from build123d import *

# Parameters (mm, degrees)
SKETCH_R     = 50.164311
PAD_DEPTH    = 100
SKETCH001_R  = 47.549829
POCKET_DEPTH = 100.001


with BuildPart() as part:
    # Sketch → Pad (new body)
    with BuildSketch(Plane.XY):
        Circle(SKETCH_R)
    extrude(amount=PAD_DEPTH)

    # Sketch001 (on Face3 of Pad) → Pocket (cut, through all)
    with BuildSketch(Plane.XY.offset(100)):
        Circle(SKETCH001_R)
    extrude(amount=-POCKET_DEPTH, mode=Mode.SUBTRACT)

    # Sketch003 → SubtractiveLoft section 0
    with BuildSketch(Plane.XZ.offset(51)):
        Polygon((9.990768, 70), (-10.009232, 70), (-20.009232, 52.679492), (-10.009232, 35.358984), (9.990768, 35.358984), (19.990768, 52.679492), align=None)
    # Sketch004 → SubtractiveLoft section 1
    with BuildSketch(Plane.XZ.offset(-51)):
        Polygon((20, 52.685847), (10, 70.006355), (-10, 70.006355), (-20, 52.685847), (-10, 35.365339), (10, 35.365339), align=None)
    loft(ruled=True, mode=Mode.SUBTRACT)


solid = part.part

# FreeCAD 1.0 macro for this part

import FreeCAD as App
import Part
import Sketcher

V = App.Vector
Q = App.Units.Quantity

doc = App.newDocument("Part")
params = doc.addObject("Spreadsheet::Sheet", "Params")
for row, (alias, value) in enumerate([
    ("pad1_length", "100 mm"),
    ("sketch3_width", "20 mm"),
    ("sketch3_length", "20 mm"),
    ("sketch4_width", "20 mm"),
    ("sketch4_length", "20 mm"),
], start=1):
    params.set(f"A{row}", alias)
    params.set(f"B{row}", "=" + value)
    params.setAlias(f"B{row}", alias)

body = doc.addObject("PartDesign::Body", "Body")

sketch1 = body.newObject("Sketcher::SketchObject", "Sketch")
sketch1.AttachmentSupport = (doc.getObject("XY_Plane"), [""])
sketch1.MapMode = "FlatFace"
sketch1.addGeometry(Part.Circle(V(0, 0, 0), V(0, 0, 1), 50), False)
sketch1.addConstraint([
    Sketcher.Constraint("Coincident", 0, 3, -1, 1),
    Sketcher.Constraint("Diameter", 0, 100.328622),
])
pad1 = body.newObject("PartDesign::Pad", "Pad")
pad1.Profile = sketch1
pad1.setExpression("Length", "Params.pad1_length")

sketch2 = body.newObject("Sketcher::SketchObject", "Sketch001")
sketch2.AttachmentSupport = (doc.getObject("XY_Plane"), [""])
sketch2.MapMode = "FlatFace"
sketch2.AttachmentOffset = App.Placement(V(0, 0, 100), App.Rotation())
sketch2.addGeometry(Part.Circle(V(0, 0, 0), V(0, 0, 1), 48), False)
sketch2.addConstraint([
    Sketcher.Constraint("Coincident", 0, 3, -1, 1),
    Sketcher.Constraint("Diameter", 0, 95.099658),
])
pocket1 = body.newObject("PartDesign::Pocket", "Pocket")
pocket1.Profile = sketch2
pocket1.Type = "ThroughAll"

sketch3 = body.newObject("Sketcher::SketchObject", "Sketch002")
sketch3.AttachmentSupport = (doc.getObject("XZ_Plane"), [""])
sketch3.MapMode = "FlatFace"
sketch3.AttachmentOffset = App.Placement(V(0, 0, 51), App.Rotation())
sketch3.addGeometry([
    Part.LineSegment(V(10, 70, 0), V(-10, 70, 0)),
    Part.LineSegment(V(-10, 70, 0), V(-20, 53, 0)),
    Part.LineSegment(V(-20, 53, 0), V(-10, 35, 0)),
    Part.LineSegment(V(-10, 35, 0), V(10, 35, 0)),
    Part.LineSegment(V(10, 35, 0), V(20, 53, 0)),
    Part.LineSegment(V(20, 53, 0), V(10, 70, 0)),
], False)
sketch3.addConstraint([
    Sketcher.Constraint("Coincident", 0, 2, 1, 1),
    Sketcher.Constraint("Coincident", 1, 2, 2, 1),
    Sketcher.Constraint("Coincident", 2, 2, 3, 1),
    Sketcher.Constraint("Coincident", 3, 2, 4, 1),
    Sketcher.Constraint("Coincident", 4, 2, 5, 1),
    Sketcher.Constraint("Coincident", 5, 2, 0, 1),
    Sketcher.Constraint("Horizontal", 0),
    Sketcher.Constraint("Horizontal", 3),
    Sketcher.Constraint("Parallel", 1, 4),
    Sketcher.Constraint("Parallel", 2, 5),
    Sketcher.Constraint("Horizontal", 1, 2, 4, 2),
    Sketcher.Constraint("Vertical", 0, 2, 2, 2),
    Sketcher.Constraint("Vertical", 3, 2, 5, 2),
    Sketcher.Constraint("DistanceX", 0, 2, 0, 1, 20.0),
    Sketcher.Constraint("Angle", 1, Q("-120 deg")),
    Sketcher.Constraint("Distance", 1, 20.0),
    Sketcher.Constraint("DistanceY", -1, 1, 0, 2, 70.0),
    Sketcher.Constraint("DistanceX", 0, 2, -1, 1, 10.009232),
])
sketch3.setExpression("Constraints[13]", "Params.sketch3_width")
sketch3.setExpression("Constraints[15]", "Params.sketch3_length")

sketch4 = body.newObject("Sketcher::SketchObject", "Sketch003")
sketch4.AttachmentSupport = (doc.getObject("XZ_Plane"), [""])
sketch4.MapMode = "FlatFace"
sketch4.AttachmentOffset = App.Placement(V(0, 0, -51), App.Rotation())
sketch4.addGeometry([
    Part.LineSegment(V(20, 53, 0), V(10, 70, 0)),
    Part.LineSegment(V(10, 70, 0), V(-10, 70, 0)),
    Part.LineSegment(V(-10, 70, 0), V(-20, 53, 0)),
    Part.LineSegment(V(-20, 53, 0), V(-10, 35, 0)),
    Part.LineSegment(V(-10, 35, 0), V(10, 35, 0)),
    Part.LineSegment(V(10, 35, 0), V(20, 53, 0)),
], False)
sketch4.addConstraint([
    Sketcher.Constraint("Coincident", 0, 2, 1, 1),
    Sketcher.Constraint("Coincident", 1, 2, 2, 1),
    Sketcher.Constraint("Coincident", 2, 2, 3, 1),
    Sketcher.Constraint("Coincident", 3, 2, 4, 1),
    Sketcher.Constraint("Coincident", 4, 2, 5, 1),
    Sketcher.Constraint("Coincident", 5, 2, 0, 1),
    Sketcher.Constraint("Horizontal", 1),
    Sketcher.Constraint("Horizontal", 4),
    Sketcher.Constraint("Symmetric", 2, 2, 5, 2, -2),
    Sketcher.Constraint("Parallel", 0, 3),
    Sketcher.Constraint("Parallel", 2, 5),
    Sketcher.Constraint("Vertical", 1, 2, 3, 2),
    Sketcher.Constraint("Vertical", 0, 2, 4, 2),
    Sketcher.Constraint("DistanceX", 1, 2, 1, 1, 20.0),
    Sketcher.Constraint("Angle", 0, Q("120 deg")),
    Sketcher.Constraint("Distance", 0, 20.0),
    Sketcher.Constraint("DistanceY", -1, 1, 3, 2, 35.365339),
])
sketch4.setExpression("Constraints[13]", "Params.sketch4_width")
sketch4.setExpression("Constraints[15]", "Params.sketch4_length")

subtractiveloft = body.newObject("PartDesign::SubtractiveLoft", "SubtractiveLoft")
subtractiveloft.Profile = sketch3
subtractiveloft.Sections = [sketch4]
subtractiveloft.Ruled = True

doc.recompute()
